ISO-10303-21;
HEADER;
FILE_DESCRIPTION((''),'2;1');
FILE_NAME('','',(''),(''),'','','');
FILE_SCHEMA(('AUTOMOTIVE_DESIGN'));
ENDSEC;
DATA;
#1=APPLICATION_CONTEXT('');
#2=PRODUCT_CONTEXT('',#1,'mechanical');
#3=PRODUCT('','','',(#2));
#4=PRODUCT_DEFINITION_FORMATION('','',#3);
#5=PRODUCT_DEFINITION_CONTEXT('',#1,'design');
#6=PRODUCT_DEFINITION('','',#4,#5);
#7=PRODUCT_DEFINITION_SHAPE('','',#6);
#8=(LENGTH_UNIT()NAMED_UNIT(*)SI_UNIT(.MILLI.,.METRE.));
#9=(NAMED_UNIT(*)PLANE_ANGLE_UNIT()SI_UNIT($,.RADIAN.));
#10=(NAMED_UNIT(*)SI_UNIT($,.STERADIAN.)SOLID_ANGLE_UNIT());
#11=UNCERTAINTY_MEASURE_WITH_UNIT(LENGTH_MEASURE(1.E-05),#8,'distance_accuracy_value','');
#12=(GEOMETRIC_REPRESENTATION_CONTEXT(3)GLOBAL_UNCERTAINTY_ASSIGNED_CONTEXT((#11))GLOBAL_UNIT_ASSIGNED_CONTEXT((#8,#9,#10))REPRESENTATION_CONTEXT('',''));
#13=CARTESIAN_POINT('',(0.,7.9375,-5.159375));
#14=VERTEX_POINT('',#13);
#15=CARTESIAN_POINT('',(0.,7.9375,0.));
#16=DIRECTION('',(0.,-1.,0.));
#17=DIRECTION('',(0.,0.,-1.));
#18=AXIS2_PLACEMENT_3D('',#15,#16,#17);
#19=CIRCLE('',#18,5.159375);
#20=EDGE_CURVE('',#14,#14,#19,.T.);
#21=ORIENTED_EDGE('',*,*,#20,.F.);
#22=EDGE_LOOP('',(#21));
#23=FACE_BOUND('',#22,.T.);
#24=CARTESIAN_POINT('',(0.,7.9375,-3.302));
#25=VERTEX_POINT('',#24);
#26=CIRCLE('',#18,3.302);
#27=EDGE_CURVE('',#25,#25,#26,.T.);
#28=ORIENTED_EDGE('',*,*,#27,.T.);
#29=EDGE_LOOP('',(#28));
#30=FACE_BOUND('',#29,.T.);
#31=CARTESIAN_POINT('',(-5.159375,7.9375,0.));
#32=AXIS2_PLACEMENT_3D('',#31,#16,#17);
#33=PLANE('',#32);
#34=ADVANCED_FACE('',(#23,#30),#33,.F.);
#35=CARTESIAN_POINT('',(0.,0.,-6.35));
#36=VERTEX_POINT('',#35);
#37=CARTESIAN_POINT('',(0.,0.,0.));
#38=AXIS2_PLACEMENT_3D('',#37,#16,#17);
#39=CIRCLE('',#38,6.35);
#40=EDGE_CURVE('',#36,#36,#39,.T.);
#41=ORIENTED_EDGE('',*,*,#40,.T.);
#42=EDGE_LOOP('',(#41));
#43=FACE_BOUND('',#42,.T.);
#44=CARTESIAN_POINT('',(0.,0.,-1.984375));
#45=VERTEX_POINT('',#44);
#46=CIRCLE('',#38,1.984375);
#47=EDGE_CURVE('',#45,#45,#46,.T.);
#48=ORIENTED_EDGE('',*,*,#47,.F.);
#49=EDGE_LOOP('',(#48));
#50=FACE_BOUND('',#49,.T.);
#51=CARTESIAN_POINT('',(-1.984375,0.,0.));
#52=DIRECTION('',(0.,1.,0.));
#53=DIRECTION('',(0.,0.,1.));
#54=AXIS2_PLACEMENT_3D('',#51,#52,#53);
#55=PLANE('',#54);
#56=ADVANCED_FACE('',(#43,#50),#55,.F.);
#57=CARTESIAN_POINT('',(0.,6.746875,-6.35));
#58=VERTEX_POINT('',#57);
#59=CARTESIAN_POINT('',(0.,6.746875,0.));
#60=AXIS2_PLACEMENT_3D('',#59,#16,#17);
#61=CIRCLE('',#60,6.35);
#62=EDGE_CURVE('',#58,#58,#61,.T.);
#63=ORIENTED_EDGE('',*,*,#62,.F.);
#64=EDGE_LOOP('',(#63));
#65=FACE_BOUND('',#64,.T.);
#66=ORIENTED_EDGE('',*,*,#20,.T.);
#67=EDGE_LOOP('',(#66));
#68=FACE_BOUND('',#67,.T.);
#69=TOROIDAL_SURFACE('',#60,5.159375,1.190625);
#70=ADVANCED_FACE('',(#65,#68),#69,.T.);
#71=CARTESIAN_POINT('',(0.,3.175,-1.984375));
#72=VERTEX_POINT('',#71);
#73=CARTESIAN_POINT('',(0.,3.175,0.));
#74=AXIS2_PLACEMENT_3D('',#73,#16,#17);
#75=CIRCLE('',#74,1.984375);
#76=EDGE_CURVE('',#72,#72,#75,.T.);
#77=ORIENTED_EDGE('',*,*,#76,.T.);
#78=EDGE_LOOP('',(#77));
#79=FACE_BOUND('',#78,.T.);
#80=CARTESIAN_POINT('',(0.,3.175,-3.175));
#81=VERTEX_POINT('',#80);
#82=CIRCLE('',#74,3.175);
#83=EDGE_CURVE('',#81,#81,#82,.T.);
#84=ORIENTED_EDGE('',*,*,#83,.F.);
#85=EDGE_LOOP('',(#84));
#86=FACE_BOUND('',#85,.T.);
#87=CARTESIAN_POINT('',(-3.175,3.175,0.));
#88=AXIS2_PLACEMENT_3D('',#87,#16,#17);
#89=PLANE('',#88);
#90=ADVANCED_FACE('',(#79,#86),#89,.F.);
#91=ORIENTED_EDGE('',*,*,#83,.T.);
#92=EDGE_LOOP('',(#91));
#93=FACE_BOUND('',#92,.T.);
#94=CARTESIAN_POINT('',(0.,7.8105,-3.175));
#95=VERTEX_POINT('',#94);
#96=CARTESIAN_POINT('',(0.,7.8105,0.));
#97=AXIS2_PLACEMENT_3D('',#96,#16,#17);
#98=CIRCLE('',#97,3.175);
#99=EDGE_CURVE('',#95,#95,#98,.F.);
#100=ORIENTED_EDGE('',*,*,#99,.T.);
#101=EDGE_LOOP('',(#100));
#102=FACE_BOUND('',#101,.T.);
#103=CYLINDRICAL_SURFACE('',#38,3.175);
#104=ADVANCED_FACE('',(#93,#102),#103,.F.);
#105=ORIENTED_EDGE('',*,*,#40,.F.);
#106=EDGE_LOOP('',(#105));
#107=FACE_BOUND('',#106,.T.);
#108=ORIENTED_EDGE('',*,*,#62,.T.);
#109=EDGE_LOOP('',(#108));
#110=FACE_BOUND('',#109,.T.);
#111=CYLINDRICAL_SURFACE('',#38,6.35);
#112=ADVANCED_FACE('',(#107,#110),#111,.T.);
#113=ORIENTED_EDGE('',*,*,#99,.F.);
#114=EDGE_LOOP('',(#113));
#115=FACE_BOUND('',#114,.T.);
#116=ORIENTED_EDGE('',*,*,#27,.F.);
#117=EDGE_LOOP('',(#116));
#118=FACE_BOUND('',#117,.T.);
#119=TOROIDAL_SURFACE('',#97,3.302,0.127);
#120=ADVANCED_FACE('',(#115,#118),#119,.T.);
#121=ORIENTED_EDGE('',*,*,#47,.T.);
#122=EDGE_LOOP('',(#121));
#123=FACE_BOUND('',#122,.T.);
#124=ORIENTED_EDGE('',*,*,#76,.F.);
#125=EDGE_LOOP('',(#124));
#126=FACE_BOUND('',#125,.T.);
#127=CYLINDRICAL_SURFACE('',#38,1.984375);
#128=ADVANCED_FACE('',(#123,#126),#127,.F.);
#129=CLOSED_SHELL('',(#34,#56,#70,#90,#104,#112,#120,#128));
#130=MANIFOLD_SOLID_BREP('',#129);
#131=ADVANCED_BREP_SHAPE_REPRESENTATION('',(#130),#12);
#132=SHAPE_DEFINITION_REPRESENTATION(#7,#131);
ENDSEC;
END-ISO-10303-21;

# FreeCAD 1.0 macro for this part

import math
import FreeCAD as App
import Part
import Sketcher
Q = App.Units.Quantity


def edges_at(feature, points):
    """Names of the edges that pass closest to the given points."""
    edges = feature.Shape.Edges
    near = lambda p: min(range(len(edges)), key=lambda i: edges[i].distToShape(Part.Vertex(*p))[0])
    return sorted({f"Edge{near(p) + 1}" for p in points})

doc = App.newDocument("Part")
body = doc.addObject("PartDesign::Body", "Body")

# Sketch on XY plane
sketch1 = body.newObject("Sketcher::SketchObject", "Sketch")
sketch1.AttachmentSupport = (doc.getObject("XY_Plane"), [""])
sketch1.MapMode = "FlatFace"
sketch1.addGeometry([
    Part.LineSegment(App.Vector(-6.3, 6.7, 0), App.Vector(-6.3, 0, 0)),  # 0
    Part.LineSegment(App.Vector(-6.3, 0, 0), App.Vector(-2, 0, 0)),  # 1
    Part.LineSegment(App.Vector(-2, 0, 0), App.Vector(-2, 3.2, 0)),  # 2
    Part.LineSegment(App.Vector(-2, 3.2, 0), App.Vector(-3.2, 3.2, 0)),  # 3
    Part.LineSegment(App.Vector(-3.2, 3.2, 0), App.Vector(-3.2, 7.9, 0)),  # 4
    Part.LineSegment(App.Vector(-3.2, 7.9, 0), App.Vector(-5.2, 7.9, 0)),  # 5
    Part.ArcOfCircle(Part.Circle(App.Vector(-5.2, 6.7, 0), App.Vector(0, 0, 1), 1.2), math.radians(90), math.radians(180)),  # 6
], False)
sketch1.addConstraint([
    Sketcher.Constraint("Coincident", 0, 2, 1, 1),
    Sketcher.Constraint("Coincident", 1, 2, 2, 1),
    Sketcher.Constraint("Coincident", 2, 2, 3, 1),
    Sketcher.Constraint("Coincident", 3, 2, 4, 1),
    Sketcher.Constraint("Coincident", 4, 2, 5, 1),
    Sketcher.Constraint("Tangent", 5, 2, 6, 1),
    Sketcher.Constraint("Tangent", 6, 2, 0, 1),
    Sketcher.Constraint("Vertical", 0),
    Sketcher.Constraint("Horizontal", 1),
    Sketcher.Constraint("Vertical", 2),
    Sketcher.Constraint("Horizontal", 3),
    Sketcher.Constraint("Vertical", 4),
    Sketcher.Constraint("Horizontal", 5),
    Sketcher.Constraint("PointOnObject", 0, 2, -1),
    Sketcher.Constraint("Radius", 6, Q("0.046875 in")),
    Sketcher.Constraint("DistanceX", 1, 1, 1, 2, Q("0.171875 in")),
    Sketcher.Constraint("DistanceX", 3, 2, 3, 1, Q("0.046875 in")),
    Sketcher.Constraint("DistanceY", 0, 2, 0, 1, Q("0.265625 in")),
    Sketcher.Constraint("DistanceY", 2, 1, 2, 2, Q("0.125 in")),
    Sketcher.Constraint("DistanceX", 0, 2, -1, 1, Q("0.25 in")),
])
revolution = body.newObject("PartDesign::Revolution", "Revolution")
revolution.Profile = sketch1
revolution.ReferenceAxis = (sketch1, ["V_Axis"])
revolution.Angle = 360
doc.recompute()

fillet = body.newObject("PartDesign::Fillet", "Fillet")
fillet.Base = (revolution, edges_at(revolution, [(3.175, 7.938, 0)]))
fillet.Radius = Q("0.005 in")

doc.recompute()
